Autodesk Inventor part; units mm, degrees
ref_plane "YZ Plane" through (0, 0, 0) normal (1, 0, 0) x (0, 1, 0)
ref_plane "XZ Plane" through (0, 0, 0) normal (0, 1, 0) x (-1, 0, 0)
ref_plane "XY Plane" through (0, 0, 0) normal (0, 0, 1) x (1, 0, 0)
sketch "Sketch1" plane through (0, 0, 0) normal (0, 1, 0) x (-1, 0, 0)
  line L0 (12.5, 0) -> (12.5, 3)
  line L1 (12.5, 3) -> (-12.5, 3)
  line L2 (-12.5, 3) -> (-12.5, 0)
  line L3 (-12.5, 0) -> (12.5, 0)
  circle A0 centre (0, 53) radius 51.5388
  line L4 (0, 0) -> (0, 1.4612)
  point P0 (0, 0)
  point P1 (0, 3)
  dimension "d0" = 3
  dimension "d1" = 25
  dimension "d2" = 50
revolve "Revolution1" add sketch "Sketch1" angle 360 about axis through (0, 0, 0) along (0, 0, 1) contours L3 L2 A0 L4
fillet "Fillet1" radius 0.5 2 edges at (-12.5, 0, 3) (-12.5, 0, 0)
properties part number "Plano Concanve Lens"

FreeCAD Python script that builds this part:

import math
import FreeCAD as App
import Part
import Sketcher
from FreeCAD import Vector


def edges_at(feature, points):
    """Names of the edges that pass closest to the given points."""
    edges = feature.Shape.Edges
    near = lambda p: min(range(len(edges)), key=lambda i: edges[i].distToShape(Part.Vertex(*p))[0])
    return sorted({f"Edge{near(p) + 1}" for p in points})

doc = App.newDocument("Part")
body = doc.addObject("PartDesign::Body", "Body")

sketch1 = body.newObject("Sketcher::SketchObject", "Sketch")
sketch1.AttachmentSupport = (doc.getObject("XZ_Plane"), [""])
sketch1.MapMode = "FlatFace"
sketch1.addGeometry([
    Part.LineSegment(Vector(12.5, 0, 0), Vector(0, 0, 0)),
    Part.LineSegment(Vector(0, 0, 0), Vector(0, 1.5, 0)),
    Part.ArcOfCircle(Part.Circle(Vector(0, 53, 0), Vector(0, 0, 1), 51.5), math.radians(-90), math.radians(-75.96)),
    Part.LineSegment(Vector(12.5, 3, 0), Vector(12.5, 0, 0)),
], False)
sketch1.addConstraint([
    Sketcher.Constraint("Coincident", 0, 2, 1, 1),
    Sketcher.Constraint("Coincident", 1, 2, 2, 1),
    Sketcher.Constraint("Coincident", 2, 2, 3, 1),
    Sketcher.Constraint("Coincident", 3, 2, 0, 1),
    Sketcher.Constraint("Horizontal", 0),
    Sketcher.Constraint("Vertical", 1),
    Sketcher.Constraint("Vertical", 3),
    Sketcher.Constraint("Coincident", 0, 2, -1, 1),
    Sketcher.Constraint("PointOnObject", 2, 3, -2),
    Sketcher.Constraint("DistanceY", 3, 2, 3, 1, 3.0),
    Sketcher.Constraint("DistanceY", 2, 2, 2, 3, 50.0),
    Sketcher.Constraint("DistanceX", 0, 2, 0, 1, 12.5),
])
revolution = body.newObject("PartDesign::Revolution", "Revolution")
revolution.Profile = sketch1
revolution.ReferenceAxis = (sketch1, ["V_Axis"])
revolution.Angle = 360
doc.recompute()

fillet = body.newObject("PartDesign::Fillet", "Fillet")
fillet.Base = (revolution, edges_at(revolution, [(-12.5, 0, 3), (-12.5, 0, 0)]))
fillet.Radius = 0.5

doc.recompute()
